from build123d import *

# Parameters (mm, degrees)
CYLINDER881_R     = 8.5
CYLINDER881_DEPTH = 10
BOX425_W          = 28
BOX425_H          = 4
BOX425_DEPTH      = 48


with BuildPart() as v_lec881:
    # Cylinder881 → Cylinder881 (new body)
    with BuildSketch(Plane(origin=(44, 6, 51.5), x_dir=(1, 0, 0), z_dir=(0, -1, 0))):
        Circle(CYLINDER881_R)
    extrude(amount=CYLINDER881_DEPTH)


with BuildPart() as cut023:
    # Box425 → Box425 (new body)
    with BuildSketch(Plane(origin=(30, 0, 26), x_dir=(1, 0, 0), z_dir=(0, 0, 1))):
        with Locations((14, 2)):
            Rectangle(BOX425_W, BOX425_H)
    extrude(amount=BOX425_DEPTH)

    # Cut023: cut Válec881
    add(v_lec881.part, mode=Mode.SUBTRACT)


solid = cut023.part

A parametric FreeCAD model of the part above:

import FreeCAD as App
import Part
import Sketcher
from FreeCAD import Vector
Q = App.Units.Quantity

doc = App.newDocument("Part")
params = doc.addObject("Spreadsheet::Sheet", "Params")
for row, (alias, value) in enumerate([
    ("sketch1_diameter", "17 mm"),
    ("pad1_length", "10 mm"),
    ("sketch2_width", "28 mm"),
    ("sketch2_height", "4 mm"),
    ("pad2_length", "48 mm"),
], start=1):
    params.set(f"A{row}", alias)
    params.set(f"B{row}", "=" + value)
    params.setAlias(f"B{row}", alias)

body = doc.addObject("PartDesign::Body", "Body")

sketch1 = body.newObject("Sketcher::SketchObject", "Sketch")
sketch1.AttachmentSupport = (doc.getObject("XZ_Plane"), [""])
sketch1.MapMode = "FlatFace"
sketch1.AttachmentOffset = App.Placement(Vector(0, 0, -6), App.Rotation())
sketch1.addGeometry(Part.Circle(Vector(44, 52, 0), Vector(0, 0, 1), 8), False)
sketch1.addConstraint([
    Sketcher.Constraint("Diameter", 0, Q("17 mm")),
    Sketcher.Constraint("DistanceX", -1, 1, 0, 3, Q("44 mm")),
    Sketcher.Constraint("DistanceY", -1, 1, 0, 3, Q("51.5 mm")),
])
sketch1.setExpression("Constraints[0]", "Params.sketch1_diameter")
pad1 = body.newObject("PartDesign::Pad", "Pad")
pad1.Profile = sketch1
pad1.setExpression("Length", "Params.pad1_length")
body2 = doc.addObject("PartDesign::Body", "Body001")

sketch2 = body2.newObject("Sketcher::SketchObject", "Sketch001")
sketch2.AttachmentSupport = (doc.getObject("XY_Plane001"), [""])
sketch2.MapMode = "FlatFace"
sketch2.AttachmentOffset = App.Placement(Vector(0, 0, 26), App.Rotation())
sketch2.addGeometry([
    Part.LineSegment(Vector(30, 4, 0), Vector(30, 0, 0)),
    Part.LineSegment(Vector(30, 0, 0), Vector(58, 0, 0)),
    Part.LineSegment(Vector(58, 0, 0), Vector(58, 4, 0)),
    Part.LineSegment(Vector(58, 4, 0), Vector(30, 4, 0)),
], False)
sketch2.addConstraint([
    Sketcher.Constraint("Coincident", 0, 2, 1, 1),
    Sketcher.Constraint("Coincident", 1, 2, 2, 1),
    Sketcher.Constraint("Coincident", 2, 2, 3, 1),
    Sketcher.Constraint("Coincident", 3, 2, 0, 1),
    Sketcher.Constraint("Vertical", 0),
    Sketcher.Constraint("Horizontal", 1),
    Sketcher.Constraint("Vertical", 2),
    Sketcher.Constraint("Horizontal", 3),
    Sketcher.Constraint("PointOnObject", 0, 2, -1),
    Sketcher.Constraint("DistanceX", 1, 1, 1, 2, Q("28 mm")),
    Sketcher.Constraint("DistanceY", 0, 2, 0, 1, Q("4 mm")),
    Sketcher.Constraint("DistanceX", -1, 1, 0, 2, Q("30 mm")),
])
sketch2.setExpression("Constraints[9]", "Params.sketch2_width")
sketch2.setExpression("Constraints[10]", "Params.sketch2_height")
pad2 = body2.newObject("PartDesign::Pad", "Pad001")
pad2.Profile = sketch2
pad2.setExpression("Length", "Params.pad2_length")
doc.recompute()

boolean = body2.newObject("PartDesign::Boolean", "Boolean")
boolean.Type = "Cut"
boolean.addObjects([body])

doc.recompute()
